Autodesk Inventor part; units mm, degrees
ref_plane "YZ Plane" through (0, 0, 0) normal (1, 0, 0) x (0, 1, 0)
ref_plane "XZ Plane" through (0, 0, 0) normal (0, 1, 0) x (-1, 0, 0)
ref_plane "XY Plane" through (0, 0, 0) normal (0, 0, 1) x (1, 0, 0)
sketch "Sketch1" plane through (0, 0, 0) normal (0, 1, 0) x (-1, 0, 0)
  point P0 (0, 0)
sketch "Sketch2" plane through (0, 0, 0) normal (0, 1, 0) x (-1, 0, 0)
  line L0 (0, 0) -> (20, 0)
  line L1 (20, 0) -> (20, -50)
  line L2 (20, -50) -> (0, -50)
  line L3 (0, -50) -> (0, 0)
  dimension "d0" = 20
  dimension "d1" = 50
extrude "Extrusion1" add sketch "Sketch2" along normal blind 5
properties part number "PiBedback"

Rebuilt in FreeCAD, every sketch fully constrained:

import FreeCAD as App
import Part
import Sketcher

V = App.Vector
Q = App.Units.Quantity

doc = App.newDocument("Part")
body = doc.addObject("PartDesign::Body", "Body")

# Sketch on XZ plane
sketch1 = body.newObject("Sketcher::SketchObject", "Sketch")
sketch1.AttachmentSupport = (doc.getObject("XZ_Plane"), [""])
sketch1.MapMode = "FlatFace"
sketch1.addGeometry(Part.LineSegment(V(-20, 0, 0), V(0, 0, 0)), False)
sketch1.addGeometry(Part.LineSegment(V(0, 0, 0), V(0, -50, 0)), False)
sketch1.addGeometry(Part.LineSegment(V(0, -50, 0), V(-20, -50, 0)), False)
sketch1.addGeometry(Part.LineSegment(V(-20, -50, 0), V(-20, 0, 0)), False)
sketch1.addConstraint(Sketcher.Constraint("Coincident", 0, 2, 1, 1))
sketch1.addConstraint(Sketcher.Constraint("Coincident", 1, 2, 2, 1))
sketch1.addConstraint(Sketcher.Constraint("Coincident", 2, 2, 3, 1))
sketch1.addConstraint(Sketcher.Constraint("Coincident", 3, 2, 0, 1))
sketch1.addConstraint(Sketcher.Constraint("Horizontal", 0))
sketch1.addConstraint(Sketcher.Constraint("Vertical", 1))
sketch1.addConstraint(Sketcher.Constraint("Horizontal", 2))
sketch1.addConstraint(Sketcher.Constraint("Vertical", 3))
sketch1.addConstraint(Sketcher.Constraint("Coincident", 0, 2, -1, 1))
sketch1.addConstraint(Sketcher.Constraint("DistanceX", 0, 1, 0, 2, Q("20 mm")))
sketch1.addConstraint(Sketcher.Constraint("DistanceY", 1, 2, 1, 1, Q("50 mm")))
pad1 = body.newObject("PartDesign::Pad", "Pad")
pad1.Profile = sketch1
pad1.Length = 5
pad1.Reversed = True

doc.recompute()
